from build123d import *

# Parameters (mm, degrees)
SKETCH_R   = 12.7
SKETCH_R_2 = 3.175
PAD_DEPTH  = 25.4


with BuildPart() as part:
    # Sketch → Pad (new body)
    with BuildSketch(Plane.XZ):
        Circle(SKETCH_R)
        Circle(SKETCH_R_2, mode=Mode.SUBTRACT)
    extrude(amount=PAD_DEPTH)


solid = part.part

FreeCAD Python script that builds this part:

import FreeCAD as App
import Part
import Sketcher

V = App.Vector
Q = App.Units.Quantity

doc = App.newDocument("Part")
params = doc.addObject("Spreadsheet::Sheet", "Params")
for row, (alias, value) in enumerate([
    ("sketch1_diameter", "1 in"),
    ("sketch1_diameter2", "0.25 in"),
    ("pad1_length", "1 in"),
], start=1):
    params.set(f"A{row}", alias)
    params.set(f"B{row}", "=" + value)
    params.setAlias(f"B{row}", alias)

body = doc.addObject("PartDesign::Body", "Body")

sketch1 = doc.addObject("Sketcher::SketchObject", "Sketch")
body.addObject(sketch1)
sketch1.AttachmentSupport = (doc.XZ_Plane, [""])
sketch1.MapMode = "FlatFace"
sketch1.addGeometry([
    Part.Circle(V(0, 0, 0), V(0, 0, 1), 12.7),
    Part.Circle(V(0, 0, 0), V(0, 0, 1), 3.2),
], False)
sketch1.addConstraint([
    Sketcher.Constraint("Coincident", 0, 3, -1, 1),
    Sketcher.Constraint("Coincident", 1, 3, -1, 1),
    Sketcher.Constraint("Diameter", 0, Q("1 in")),
    Sketcher.Constraint("Diameter", 1, Q("0.25 in")),
])
sketch1.setExpression("Constraints[2]", "Params.sketch1_diameter")
sketch1.setExpression("Constraints[3]", "Params.sketch1_diameter2")
pad1 = doc.addObject("PartDesign::Pad", "Pad")
body.addObject(pad1)
pad1.Profile = sketch1
pad1.setExpression("Length", "Params.pad1_length")

doc.recompute()
